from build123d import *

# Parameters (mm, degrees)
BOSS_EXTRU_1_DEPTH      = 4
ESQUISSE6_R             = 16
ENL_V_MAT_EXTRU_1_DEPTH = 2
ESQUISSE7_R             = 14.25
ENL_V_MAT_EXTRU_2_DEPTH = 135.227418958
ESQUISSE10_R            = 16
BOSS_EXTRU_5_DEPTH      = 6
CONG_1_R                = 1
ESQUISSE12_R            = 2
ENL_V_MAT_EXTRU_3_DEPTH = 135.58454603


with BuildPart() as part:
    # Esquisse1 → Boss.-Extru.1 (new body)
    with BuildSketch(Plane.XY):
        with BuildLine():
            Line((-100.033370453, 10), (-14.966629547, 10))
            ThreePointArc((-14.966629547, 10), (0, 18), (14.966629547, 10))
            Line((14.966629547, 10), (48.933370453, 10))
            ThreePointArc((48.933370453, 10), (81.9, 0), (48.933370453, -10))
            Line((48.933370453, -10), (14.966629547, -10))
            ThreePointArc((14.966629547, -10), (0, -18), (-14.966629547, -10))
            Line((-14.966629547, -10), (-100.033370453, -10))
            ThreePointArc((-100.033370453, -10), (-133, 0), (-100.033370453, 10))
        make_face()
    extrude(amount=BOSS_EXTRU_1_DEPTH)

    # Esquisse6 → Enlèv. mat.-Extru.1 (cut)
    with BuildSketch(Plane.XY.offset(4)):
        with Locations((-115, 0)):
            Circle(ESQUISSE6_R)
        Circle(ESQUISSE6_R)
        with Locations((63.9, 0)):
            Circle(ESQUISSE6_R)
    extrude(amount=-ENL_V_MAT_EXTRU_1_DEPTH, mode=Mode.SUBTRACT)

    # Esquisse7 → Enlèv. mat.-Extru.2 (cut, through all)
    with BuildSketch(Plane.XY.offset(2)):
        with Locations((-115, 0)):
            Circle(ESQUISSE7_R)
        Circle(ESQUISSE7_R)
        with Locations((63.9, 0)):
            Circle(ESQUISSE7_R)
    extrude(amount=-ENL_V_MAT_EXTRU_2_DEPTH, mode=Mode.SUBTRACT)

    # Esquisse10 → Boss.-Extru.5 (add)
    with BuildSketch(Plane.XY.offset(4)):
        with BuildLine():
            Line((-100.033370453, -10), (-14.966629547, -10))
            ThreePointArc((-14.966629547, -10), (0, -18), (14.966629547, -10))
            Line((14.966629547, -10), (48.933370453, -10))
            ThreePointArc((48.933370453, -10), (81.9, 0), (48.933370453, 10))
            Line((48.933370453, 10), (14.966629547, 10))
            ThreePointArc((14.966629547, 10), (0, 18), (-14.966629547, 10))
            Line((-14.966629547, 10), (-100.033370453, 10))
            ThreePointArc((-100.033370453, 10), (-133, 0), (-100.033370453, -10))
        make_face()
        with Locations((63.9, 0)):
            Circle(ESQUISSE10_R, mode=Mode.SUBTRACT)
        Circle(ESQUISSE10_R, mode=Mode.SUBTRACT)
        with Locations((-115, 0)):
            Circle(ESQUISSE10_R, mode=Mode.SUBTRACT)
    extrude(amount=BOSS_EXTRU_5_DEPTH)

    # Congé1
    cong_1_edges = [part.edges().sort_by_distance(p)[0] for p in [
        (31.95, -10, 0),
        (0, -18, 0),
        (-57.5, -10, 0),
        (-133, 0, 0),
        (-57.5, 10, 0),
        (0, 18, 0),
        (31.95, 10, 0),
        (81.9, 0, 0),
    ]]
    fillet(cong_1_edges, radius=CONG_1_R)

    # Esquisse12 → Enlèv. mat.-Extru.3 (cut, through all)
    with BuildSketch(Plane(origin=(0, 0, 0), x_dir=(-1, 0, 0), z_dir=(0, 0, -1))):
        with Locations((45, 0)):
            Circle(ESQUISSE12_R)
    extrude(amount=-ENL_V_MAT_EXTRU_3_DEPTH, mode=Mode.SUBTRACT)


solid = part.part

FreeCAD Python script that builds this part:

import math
import FreeCAD as App
import Part
import Sketcher

V = App.Vector
Q = App.Units.Quantity


def edges_at(feature, points):
    """Names of the edges that pass closest to the given points."""
    edges = feature.Shape.Edges
    near = lambda p: min(range(len(edges)), key=lambda i: edges[i].distToShape(Part.Vertex(*p))[0])
    return sorted({f"Edge{near(p) + 1}" for p in points})

doc = App.newDocument("Part")
body = doc.addObject("PartDesign::Body", "Body")

# Sketch on XY plane
sketch1 = doc.addObject("Sketcher::SketchObject", "Sketch")
body.addObject(sketch1)
sketch1.AttachmentSupport = (doc.XY_Plane, [""])
sketch1.MapMode = "FlatFace"
sketch1.addGeometry([
    Part.LineSegment(V(-15, 10, 0), V(-100, 10, 0)),  # 0
    Part.ArcOfCircle(Part.Circle(V(-115, 0, 0), V(0, 0, 1), 18), math.radians(34), math.radians(326)),  # 1
    Part.LineSegment(V(-100, -10, 0), V(-15, -10, 0)),  # 2
    Part.ArcOfCircle(Part.Circle(V(0, 0, 0), V(0, 0, 1), 18), math.radians(-146), math.radians(-34)),  # 3
    Part.LineSegment(V(15, -10, 0), V(49, -10, 0)),  # 4
    Part.ArcOfCircle(Part.Circle(V(64, 0, 0), V(0, 0, 1), 18), math.radians(-146), math.radians(146)),  # 5
    Part.LineSegment(V(49, 10, 0), V(15, 10, 0)),  # 6
    Part.ArcOfCircle(Part.Circle(V(0, 0, 0), V(0, 0, 1), 18), math.radians(34), math.radians(146)),  # 7
], False)
sketch1.addConstraint([
    Sketcher.Constraint("Coincident", 0, 2, 1, 1),
    Sketcher.Constraint("Coincident", 1, 2, 2, 1),
    Sketcher.Constraint("Coincident", 2, 2, 3, 1),
    Sketcher.Constraint("Coincident", 3, 2, 4, 1),
    Sketcher.Constraint("Coincident", 4, 2, 5, 1),
    Sketcher.Constraint("Coincident", 5, 2, 6, 1),
    Sketcher.Constraint("Coincident", 6, 2, 7, 1),
    Sketcher.Constraint("Coincident", 7, 2, 0, 1),
    Sketcher.Constraint("Horizontal", 0),
    Sketcher.Constraint("Horizontal", 2),
    Sketcher.Constraint("Horizontal", 4),
    Sketcher.Constraint("Horizontal", 6),
    Sketcher.Constraint("Coincident", 3, 3, -1, 1),
    Sketcher.Constraint("Coincident", 7, 3, -1, 1),
    Sketcher.Constraint("Equal", 1, 3),
    Sketcher.Constraint("Equal", 3, 5),
    Sketcher.Constraint("Equal", 5, 7),
    Sketcher.Constraint("Symmetric", 0, 2, 1, 2, -1),
    Sketcher.Constraint("Symmetric", 4, 2, 5, 2, -1),
    Sketcher.Constraint("Horizontal", 2, 2, 3, 2),
    Sketcher.Constraint("Radius", 1, Q("18 mm")),
    Sketcher.Constraint("DistanceX", 1, 3, -1, 1, Q("115 mm")),
    Sketcher.Constraint("DistanceY", -1, 1, 0, 2, Q("10 mm")),
    Sketcher.Constraint("DistanceX", -1, 1, 5, 3, Q("63.9 mm")),
])
pad1 = doc.addObject("PartDesign::Pad", "Pad")
body.addObject(pad1)
pad1.Profile = sketch1
pad1.Length = 4

# Sketch on XY plane
sketch2 = doc.addObject("Sketcher::SketchObject", "Sketch001")
body.addObject(sketch2)
sketch2.AttachmentSupport = (doc.XY_Plane, [""])
sketch2.MapMode = "FlatFace"
sketch2.AttachmentOffset = App.Placement(V(0, 0, 4), App.Rotation())
sketch2.addGeometry([
    Part.Circle(V(-115, 0, 0), V(0, 0, 1), 16),
    Part.Circle(V(0, 0, 0), V(0, 0, 1), 16),
    Part.Circle(V(64, 0, 0), V(0, 0, 1), 16),
], False)
sketch2.addConstraint([
    Sketcher.Constraint("Coincident", 1, 3, -1, 1),
    Sketcher.Constraint("Equal", 0, 1),
    Sketcher.Constraint("Equal", 1, 2),
    Sketcher.Constraint("PointOnObject", 0, 3, -1),
    Sketcher.Constraint("PointOnObject", 2, 3, -1),
    Sketcher.Constraint("Diameter", 0, Q("32 mm")),
    Sketcher.Constraint("DistanceX", 0, 3, -1, 1, Q("115 mm")),
    Sketcher.Constraint("DistanceX", -1, 1, 2, 3, Q("63.9 mm")),
])
pocket1 = doc.addObject("PartDesign::Pocket", "Pocket")
body.addObject(pocket1)
pocket1.Profile = sketch2
pocket1.Length = 2

# Sketch on XY plane
sketch3 = doc.addObject("Sketcher::SketchObject", "Sketch002")
body.addObject(sketch3)
sketch3.AttachmentSupport = (doc.XY_Plane, [""])
sketch3.MapMode = "FlatFace"
sketch3.AttachmentOffset = App.Placement(V(0, 0, 2), App.Rotation())
sketch3.addGeometry([
    Part.Circle(V(-115, 0, 0), V(0, 0, 1), 14),
    Part.Circle(V(0, 0, 0), V(0, 0, 1), 14),
    Part.Circle(V(64, 0, 0), V(0, 0, 1), 14),
], False)
sketch3.addConstraint([
    Sketcher.Constraint("Coincident", 1, 3, -1, 1),
    Sketcher.Constraint("Equal", 0, 1),
    Sketcher.Constraint("Equal", 1, 2),
    Sketcher.Constraint("PointOnObject", 0, 3, -1),
    Sketcher.Constraint("PointOnObject", 2, 3, -1),
    Sketcher.Constraint("Diameter", 0, Q("28.5 mm")),
    Sketcher.Constraint("DistanceX", 0, 3, -1, 1, Q("115 mm")),
    Sketcher.Constraint("DistanceX", -1, 1, 2, 3, Q("63.9 mm")),
])
pocket2 = doc.addObject("PartDesign::Pocket", "Pocket001")
body.addObject(pocket2)
pocket2.Profile = sketch3
pocket2.Type = "ThroughAll"

# Sketch on XY plane
sketch4 = doc.addObject("Sketcher::SketchObject", "Sketch003")
body.addObject(sketch4)
sketch4.AttachmentSupport = (doc.XY_Plane, [""])
sketch4.MapMode = "FlatFace"
sketch4.AttachmentOffset = App.Placement(V(0, 0, 4), App.Rotation())
sketch4.addGeometry([
    Part.LineSegment(V(-100, -10, 0), V(-15, -10, 0)),  # 0
    Part.ArcOfCircle(Part.Circle(V(0, 0, 0), V(0, 0, 1), 18), math.radians(-146), math.radians(-34)),  # 1
    Part.LineSegment(V(15, -10, 0), V(49, -10, 0)),  # 2
    Part.ArcOfCircle(Part.Circle(V(64, 0, 0), V(0, 0, 1), 18), math.radians(-146), math.radians(146)),  # 3
    Part.LineSegment(V(49, 10, 0), V(15, 10, 0)),  # 4
    Part.ArcOfCircle(Part.Circle(V(0, 0, 0), V(0, 0, 1), 18), math.radians(34), math.radians(146)),  # 5
    Part.LineSegment(V(-15, 10, 0), V(-100, 10, 0)),  # 6
    Part.ArcOfCircle(Part.Circle(V(-115, 0, 0), V(0, 0, 1), 18), math.radians(34), math.radians(326)),  # 7
    Part.Circle(V(-115, 0, 0), V(0, 0, 1), 16),  # 8
    Part.Circle(V(0, 0, 0), V(0, 0, 1), 16),  # 9
    Part.Circle(V(64, 0, 0), V(0, 0, 1), 16),  # 10
], False)
sketch4.addConstraint([
    Sketcher.Constraint("Coincident", 0, 2, 1, 1),
    Sketcher.Constraint("Coincident", 1, 2, 2, 1),
    Sketcher.Constraint("Coincident", 2, 2, 3, 1),
    Sketcher.Constraint("Coincident", 3, 2, 4, 1),
    Sketcher.Constraint("Coincident", 4, 2, 5, 1),
    Sketcher.Constraint("Coincident", 5, 2, 6, 1),
    Sketcher.Constraint("Coincident", 6, 2, 7, 1),
    Sketcher.Constraint("Coincident", 7, 2, 0, 1),
    Sketcher.Constraint("Horizontal", 0),
    Sketcher.Constraint("Horizontal", 2),
    Sketcher.Constraint("Horizontal", 4),
    Sketcher.Constraint("Horizontal", 6),
    Sketcher.Constraint("Coincident", 1, 3, -1, 1),
    Sketcher.Constraint("Coincident", 5, 3, -1, 1),
    Sketcher.Constraint("Coincident", 9, 3, -1, 1),
    Sketcher.Constraint("Coincident", 8, 3, 7, 3),
    Sketcher.Constraint("Coincident", 10, 3, 3, 3),
    Sketcher.Constraint("Equal", 1, 3),
    Sketcher.Constraint("Equal", 3, 5),
    Sketcher.Constraint("Equal", 5, 7),
    Sketcher.Constraint("Equal", 8, 9),
    Sketcher.Constraint("Equal", 9, 10),
    Sketcher.Constraint("Symmetric", 2, 2, 3, 2, -1),
    Sketcher.Constraint("Symmetric", 6, 2, 7, 2, -1),
    Sketcher.Constraint("Horizontal", 0, 2, 1, 2),
    Sketcher.Constraint("Diameter", 8, Q("32 mm")),
    Sketcher.Constraint("Radius", 1, Q("18 mm")),
    Sketcher.Constraint("DistanceX", 7, 3, -1, 1, Q("115 mm")),
    Sketcher.Constraint("DistanceY", 0, 2, -1, 1, Q("10 mm")),
    Sketcher.Constraint("DistanceX", -1, 1, 3, 3, Q("63.9 mm")),
])
pad2 = doc.addObject("PartDesign::Pad", "Pad001")
body.addObject(pad2)
pad2.Profile = sketch4
pad2.Length = 6
doc.recompute()

fillet = doc.addObject("PartDesign::Fillet", "Fillet")
body.addObject(fillet)
fillet.Base = (pad2, edges_at(pad2, [
    (31.95, -10, 0),
    (0, -18, 0),
    (-57.5, -10, 0),
    (-133, 0, 0),
    (-57.5, 10, 0),
    (0, 18, 0),
    (31.95, 10, 0),
    (81.9, 0, 0),
]))
fillet.Radius = 1

# Sketch on XY plane
sketch5 = doc.addObject("Sketcher::SketchObject", "Sketch004")
body.addObject(sketch5)
sketch5.AttachmentSupport = (doc.XY_Plane, [""])
sketch5.MapMode = "FlatFace"
sketch5.addGeometry(Part.Circle(V(-45, 0, 0), V(0, 0, 1), 2), False)
sketch5.addConstraint([
    Sketcher.Constraint("PointOnObject", 0, 3, -1),
    Sketcher.Constraint("Diameter", 0, Q("4 mm")),
    Sketcher.Constraint("DistanceX", 0, 3, -1, 1, Q("45 mm")),
])
pocket3 = doc.addObject("PartDesign::Pocket", "Pocket002")
body.addObject(pocket3)
pocket3.Profile = sketch5
pocket3.Type = "ThroughAll"
pocket3.Reversed = True

doc.recompute()
